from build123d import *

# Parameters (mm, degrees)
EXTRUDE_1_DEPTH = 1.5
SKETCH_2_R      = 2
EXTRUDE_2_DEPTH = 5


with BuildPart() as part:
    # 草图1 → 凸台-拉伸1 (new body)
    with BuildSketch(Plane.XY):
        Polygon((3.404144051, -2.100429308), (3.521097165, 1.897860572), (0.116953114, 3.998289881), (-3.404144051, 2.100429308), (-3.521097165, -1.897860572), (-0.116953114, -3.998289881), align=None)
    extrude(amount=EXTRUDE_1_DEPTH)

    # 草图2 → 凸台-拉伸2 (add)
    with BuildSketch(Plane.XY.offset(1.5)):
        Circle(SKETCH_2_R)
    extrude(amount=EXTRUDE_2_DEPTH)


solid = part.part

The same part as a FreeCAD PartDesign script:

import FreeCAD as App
import Part
import Sketcher
Q = App.Units.Quantity

doc = App.newDocument("Part")
params = doc.addObject("Spreadsheet::Sheet", "Params")
for row, (alias, value) in enumerate([
    ("sketch1_length", "4 mm"),
    ("pad1_length", "1.5 mm"),
    ("sketch2_diameter", "4 mm"),
    ("pad2_length", "5 mm"),
], start=1):
    params.set(f"A{row}", alias)
    params.set(f"B{row}", "=" + value)
    params.setAlias(f"B{row}", alias)

body = doc.addObject("PartDesign::Body", "Body")

# Sketch on XY plane
sketch1 = body.newObject("Sketcher::SketchObject", "Sketch")
sketch1.AttachmentSupport = (doc.getObject("XY_Plane"), [""])
sketch1.MapMode = "FlatFace"
sketch1.addGeometry(Part.LineSegment(App.Vector(3.4, -2.1, 0), App.Vector(3.5, 1.9, 0)), False)
sketch1.addGeometry(Part.LineSegment(App.Vector(3.5, 1.9, 0), App.Vector(0.1, 4, 0)), False)
sketch1.addGeometry(Part.LineSegment(App.Vector(0.1, 4, 0), App.Vector(-3.4, 2.1, 0)), False)
sketch1.addGeometry(Part.LineSegment(App.Vector(-3.4, 2.1, 0), App.Vector(-3.5, -1.9, 0)), False)
sketch1.addGeometry(Part.LineSegment(App.Vector(-3.5, -1.9, 0), App.Vector(-0.1, -4, 0)), False)
sketch1.addGeometry(Part.LineSegment(App.Vector(-0.1, -4, 0), App.Vector(3.4, -2.1, 0)), False)
sketch1.addConstraint(Sketcher.Constraint("Coincident", 0, 2, 1, 1))
sketch1.addConstraint(Sketcher.Constraint("Coincident", 1, 2, 2, 1))
sketch1.addConstraint(Sketcher.Constraint("Coincident", 2, 2, 3, 1))
sketch1.addConstraint(Sketcher.Constraint("Coincident", 3, 2, 4, 1))
sketch1.addConstraint(Sketcher.Constraint("Coincident", 4, 2, 5, 1))
sketch1.addConstraint(Sketcher.Constraint("Coincident", 5, 2, 0, 1))
sketch1.addConstraint(Sketcher.Constraint("Symmetric", 0, 2, 3, 2, -1, 1))
sketch1.addConstraint(Sketcher.Constraint("Symmetric", 1, 2, 4, 2, -1, 1))
sketch1.addConstraint(Sketcher.Constraint("Symmetric", 2, 2, 5, 2, -1, 1))
sketch1.addConstraint(Sketcher.Constraint("Equal", 0, 1))
sketch1.addConstraint(Sketcher.Constraint("Equal", 1, 2))
sketch1.addConstraint(Sketcher.Constraint("Distance", 0, Q("4 mm")))
sketch1.addConstraint(Sketcher.Constraint("DistanceY", -1, 1, 0, 2, Q("1.897861 mm")))
sketch1.addConstraint(Sketcher.Constraint("DistanceY", -1, 1, 1, 2, Q("3.99829 mm")))
sketch1.addConstraint(Sketcher.Constraint("DistanceY", -1, 1, 2, 2, Q("2.100429 mm")))
sketch1.setExpression("Constraints[11]", "Params.sketch1_length")
pad1 = body.newObject("PartDesign::Pad", "Pad")
pad1.Profile = sketch1
pad1.setExpression("Length", "Params.pad1_length")

# Sketch on XY plane
sketch2 = body.newObject("Sketcher::SketchObject", "Sketch001")
sketch2.AttachmentSupport = (doc.getObject("XY_Plane"), [""])
sketch2.MapMode = "FlatFace"
sketch2.AttachmentOffset = App.Placement(App.Vector(0, 0, 1.5), App.Rotation())
sketch2.addGeometry(Part.Circle(App.Vector(0, 0, 0), App.Vector(0, 0, 1), 2), False)
sketch2.addConstraint(Sketcher.Constraint("Coincident", 0, 3, -1, 1))
sketch2.addConstraint(Sketcher.Constraint("Diameter", 0, Q("4 mm")))
sketch2.setExpression("Constraints[1]", "Params.sketch2_diameter")
pad2 = body.newObject("PartDesign::Pad", "Pad001")
pad2.Profile = sketch2
pad2.setExpression("Length", "Params.pad2_length")

doc.recompute()
